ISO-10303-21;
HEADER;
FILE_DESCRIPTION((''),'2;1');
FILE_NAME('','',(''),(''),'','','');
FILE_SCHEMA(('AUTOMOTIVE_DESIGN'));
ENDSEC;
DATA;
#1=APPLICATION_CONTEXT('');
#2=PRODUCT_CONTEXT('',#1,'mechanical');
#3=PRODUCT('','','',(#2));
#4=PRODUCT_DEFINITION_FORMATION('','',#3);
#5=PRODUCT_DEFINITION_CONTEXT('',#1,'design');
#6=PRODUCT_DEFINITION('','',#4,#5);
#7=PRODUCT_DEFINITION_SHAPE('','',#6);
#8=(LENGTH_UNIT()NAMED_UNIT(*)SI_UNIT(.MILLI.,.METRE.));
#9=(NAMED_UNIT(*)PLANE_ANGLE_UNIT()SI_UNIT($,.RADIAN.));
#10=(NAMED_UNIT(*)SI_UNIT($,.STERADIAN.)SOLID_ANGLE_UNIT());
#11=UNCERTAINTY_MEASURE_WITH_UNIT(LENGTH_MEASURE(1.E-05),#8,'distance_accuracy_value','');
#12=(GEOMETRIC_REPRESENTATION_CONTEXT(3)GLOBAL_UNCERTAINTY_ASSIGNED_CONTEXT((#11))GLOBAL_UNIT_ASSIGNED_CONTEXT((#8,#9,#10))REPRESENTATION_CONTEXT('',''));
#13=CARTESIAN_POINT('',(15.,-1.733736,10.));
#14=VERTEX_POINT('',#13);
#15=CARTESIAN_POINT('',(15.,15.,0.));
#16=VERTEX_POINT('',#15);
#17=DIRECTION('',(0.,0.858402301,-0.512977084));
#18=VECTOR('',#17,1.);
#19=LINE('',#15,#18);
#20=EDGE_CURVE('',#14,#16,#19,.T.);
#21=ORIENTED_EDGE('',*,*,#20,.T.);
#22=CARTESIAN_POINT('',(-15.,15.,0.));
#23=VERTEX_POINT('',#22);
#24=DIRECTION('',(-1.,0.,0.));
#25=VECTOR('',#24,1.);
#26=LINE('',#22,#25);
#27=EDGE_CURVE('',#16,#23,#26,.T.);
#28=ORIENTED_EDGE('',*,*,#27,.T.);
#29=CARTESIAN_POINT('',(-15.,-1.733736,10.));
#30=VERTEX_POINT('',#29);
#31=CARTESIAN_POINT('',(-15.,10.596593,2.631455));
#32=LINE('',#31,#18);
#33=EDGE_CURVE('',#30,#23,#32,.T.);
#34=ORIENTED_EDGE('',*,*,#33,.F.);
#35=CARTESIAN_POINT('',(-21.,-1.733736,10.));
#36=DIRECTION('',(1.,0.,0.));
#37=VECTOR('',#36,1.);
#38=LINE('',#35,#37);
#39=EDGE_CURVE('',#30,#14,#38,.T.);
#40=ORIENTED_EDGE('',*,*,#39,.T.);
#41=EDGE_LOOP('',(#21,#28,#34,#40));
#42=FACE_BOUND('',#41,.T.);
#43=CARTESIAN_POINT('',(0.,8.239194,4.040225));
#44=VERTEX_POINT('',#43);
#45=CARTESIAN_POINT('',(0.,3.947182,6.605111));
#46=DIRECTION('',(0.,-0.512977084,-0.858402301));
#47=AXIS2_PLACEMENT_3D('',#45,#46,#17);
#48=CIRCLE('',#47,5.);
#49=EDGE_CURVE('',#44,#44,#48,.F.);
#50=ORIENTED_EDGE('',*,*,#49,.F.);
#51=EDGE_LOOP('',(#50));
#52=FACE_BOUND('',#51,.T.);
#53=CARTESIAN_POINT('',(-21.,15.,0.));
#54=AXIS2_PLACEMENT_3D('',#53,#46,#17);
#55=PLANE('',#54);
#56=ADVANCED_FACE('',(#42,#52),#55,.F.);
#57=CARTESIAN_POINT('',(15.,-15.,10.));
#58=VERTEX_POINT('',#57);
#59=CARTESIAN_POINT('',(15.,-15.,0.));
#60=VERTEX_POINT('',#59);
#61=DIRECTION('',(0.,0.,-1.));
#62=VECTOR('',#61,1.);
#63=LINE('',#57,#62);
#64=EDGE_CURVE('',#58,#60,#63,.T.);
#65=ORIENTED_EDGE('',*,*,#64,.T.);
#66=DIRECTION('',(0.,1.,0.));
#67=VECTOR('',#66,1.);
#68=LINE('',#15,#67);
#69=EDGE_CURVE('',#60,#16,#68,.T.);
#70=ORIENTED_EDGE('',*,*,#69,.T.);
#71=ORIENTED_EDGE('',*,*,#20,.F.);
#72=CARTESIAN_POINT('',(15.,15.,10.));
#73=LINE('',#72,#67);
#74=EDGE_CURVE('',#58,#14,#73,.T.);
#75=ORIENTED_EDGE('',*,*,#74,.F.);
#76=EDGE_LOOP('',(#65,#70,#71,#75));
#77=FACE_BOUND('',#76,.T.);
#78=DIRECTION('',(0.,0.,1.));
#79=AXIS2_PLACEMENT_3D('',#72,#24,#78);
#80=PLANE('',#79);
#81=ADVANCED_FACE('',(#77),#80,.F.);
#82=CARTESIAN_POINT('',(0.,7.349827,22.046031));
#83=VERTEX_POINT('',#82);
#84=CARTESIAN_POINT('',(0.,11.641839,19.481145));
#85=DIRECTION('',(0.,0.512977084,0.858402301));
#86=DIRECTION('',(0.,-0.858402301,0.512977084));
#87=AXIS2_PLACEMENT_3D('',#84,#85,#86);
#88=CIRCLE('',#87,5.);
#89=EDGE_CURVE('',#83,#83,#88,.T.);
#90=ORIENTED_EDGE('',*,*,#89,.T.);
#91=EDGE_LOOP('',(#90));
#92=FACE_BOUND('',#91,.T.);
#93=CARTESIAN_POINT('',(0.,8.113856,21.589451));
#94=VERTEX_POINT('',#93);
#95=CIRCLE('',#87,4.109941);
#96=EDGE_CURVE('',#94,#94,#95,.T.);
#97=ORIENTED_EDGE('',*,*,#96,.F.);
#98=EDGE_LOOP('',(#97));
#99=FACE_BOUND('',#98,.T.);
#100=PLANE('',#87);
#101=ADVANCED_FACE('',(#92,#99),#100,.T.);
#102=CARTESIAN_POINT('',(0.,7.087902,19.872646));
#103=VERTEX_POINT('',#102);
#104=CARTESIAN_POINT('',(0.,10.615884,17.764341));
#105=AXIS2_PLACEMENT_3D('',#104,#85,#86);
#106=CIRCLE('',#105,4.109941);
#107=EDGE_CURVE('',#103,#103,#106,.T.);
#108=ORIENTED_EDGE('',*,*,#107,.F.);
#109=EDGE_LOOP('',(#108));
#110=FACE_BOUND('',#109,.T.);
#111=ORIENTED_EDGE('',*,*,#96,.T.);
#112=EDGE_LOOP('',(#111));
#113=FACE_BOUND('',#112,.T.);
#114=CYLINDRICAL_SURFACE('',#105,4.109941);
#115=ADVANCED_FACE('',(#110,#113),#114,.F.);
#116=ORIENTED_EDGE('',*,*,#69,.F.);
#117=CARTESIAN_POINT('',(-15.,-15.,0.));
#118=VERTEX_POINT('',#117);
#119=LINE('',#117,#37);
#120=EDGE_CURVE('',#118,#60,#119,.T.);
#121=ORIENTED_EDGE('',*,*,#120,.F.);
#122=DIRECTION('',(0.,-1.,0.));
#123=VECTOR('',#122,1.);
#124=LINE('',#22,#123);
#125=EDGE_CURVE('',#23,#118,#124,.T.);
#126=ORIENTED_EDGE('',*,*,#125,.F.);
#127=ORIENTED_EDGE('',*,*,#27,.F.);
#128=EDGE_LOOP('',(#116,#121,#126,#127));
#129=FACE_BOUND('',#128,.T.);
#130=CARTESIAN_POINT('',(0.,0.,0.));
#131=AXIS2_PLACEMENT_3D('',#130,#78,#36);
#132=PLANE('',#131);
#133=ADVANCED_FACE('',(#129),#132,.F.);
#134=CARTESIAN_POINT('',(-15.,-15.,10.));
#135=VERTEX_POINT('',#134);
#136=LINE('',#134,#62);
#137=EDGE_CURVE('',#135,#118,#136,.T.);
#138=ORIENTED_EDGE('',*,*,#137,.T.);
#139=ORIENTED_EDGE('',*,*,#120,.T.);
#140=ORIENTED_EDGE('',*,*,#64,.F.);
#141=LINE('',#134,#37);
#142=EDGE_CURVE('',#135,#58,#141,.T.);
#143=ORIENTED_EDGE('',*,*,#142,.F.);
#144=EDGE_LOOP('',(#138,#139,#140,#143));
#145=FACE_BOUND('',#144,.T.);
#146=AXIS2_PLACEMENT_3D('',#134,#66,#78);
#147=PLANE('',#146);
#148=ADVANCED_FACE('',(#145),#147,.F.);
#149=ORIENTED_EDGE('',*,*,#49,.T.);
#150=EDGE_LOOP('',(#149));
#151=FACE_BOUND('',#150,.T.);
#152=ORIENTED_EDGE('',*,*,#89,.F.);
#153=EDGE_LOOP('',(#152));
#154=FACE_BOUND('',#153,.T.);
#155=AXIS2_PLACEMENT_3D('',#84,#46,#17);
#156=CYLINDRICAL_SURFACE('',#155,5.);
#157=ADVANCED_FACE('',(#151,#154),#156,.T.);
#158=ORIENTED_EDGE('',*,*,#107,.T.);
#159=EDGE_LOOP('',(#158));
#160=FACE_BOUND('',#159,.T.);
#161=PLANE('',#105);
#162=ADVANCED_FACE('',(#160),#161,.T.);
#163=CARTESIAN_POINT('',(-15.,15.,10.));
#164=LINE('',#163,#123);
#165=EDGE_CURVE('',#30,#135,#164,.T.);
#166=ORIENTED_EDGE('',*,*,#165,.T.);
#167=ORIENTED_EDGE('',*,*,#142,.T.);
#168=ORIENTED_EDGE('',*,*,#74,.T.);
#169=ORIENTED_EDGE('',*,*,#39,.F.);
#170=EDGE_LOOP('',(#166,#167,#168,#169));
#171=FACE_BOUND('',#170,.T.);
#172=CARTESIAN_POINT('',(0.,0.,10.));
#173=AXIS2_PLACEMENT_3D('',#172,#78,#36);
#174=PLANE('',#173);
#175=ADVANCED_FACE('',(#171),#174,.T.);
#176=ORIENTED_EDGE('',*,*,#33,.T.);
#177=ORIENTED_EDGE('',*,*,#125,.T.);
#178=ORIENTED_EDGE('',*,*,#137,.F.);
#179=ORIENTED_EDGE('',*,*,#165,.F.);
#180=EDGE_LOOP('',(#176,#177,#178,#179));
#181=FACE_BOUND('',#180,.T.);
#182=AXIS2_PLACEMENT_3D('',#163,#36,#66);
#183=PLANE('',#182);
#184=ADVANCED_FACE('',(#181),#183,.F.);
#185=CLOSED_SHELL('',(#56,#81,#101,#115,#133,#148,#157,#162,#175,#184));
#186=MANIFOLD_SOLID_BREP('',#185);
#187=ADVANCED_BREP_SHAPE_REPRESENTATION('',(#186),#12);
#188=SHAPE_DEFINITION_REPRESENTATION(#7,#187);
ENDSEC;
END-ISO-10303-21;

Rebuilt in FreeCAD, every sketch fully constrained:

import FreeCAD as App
import Part
import Sketcher
from FreeCAD import Vector

doc = App.newDocument("Part")
body = doc.addObject("PartDesign::Body", "Body")

sketch1 = body.newObject("Sketcher::SketchObject", "Sketch")
sketch1.AttachmentSupport = (doc.getObject("XY_Plane"), [""])
sketch1.MapMode = "FlatFace"
sketch1.addGeometry([
    Part.LineSegment(Vector(-15, 15, 0), Vector(-15, -15, 0)),
    Part.LineSegment(Vector(-15, -15, 0), Vector(15, -15, 0)),
    Part.LineSegment(Vector(15, -15, 0), Vector(15, 15, 0)),
    Part.LineSegment(Vector(15, 15, 0), Vector(-15, 15, 0)),
], False)
sketch1.addConstraint([
    Sketcher.Constraint("Coincident", 0, 2, 1, 1),
    Sketcher.Constraint("Coincident", 1, 2, 2, 1),
    Sketcher.Constraint("Coincident", 2, 2, 3, 1),
    Sketcher.Constraint("Coincident", 3, 2, 0, 1),
    Sketcher.Constraint("Vertical", 0),
    Sketcher.Constraint("Horizontal", 1),
    Sketcher.Constraint("Vertical", 2),
    Sketcher.Constraint("Horizontal", 3),
    Sketcher.Constraint("Symmetric", 0, 2, 2, 2, -1, 1),
    Sketcher.Constraint("Equal", 3, 0),
    Sketcher.Constraint("DistanceX", 1, 1, 1, 2, 30.0),
])
pad1 = body.newObject("PartDesign::Pad", "Pad")
pad1.Profile = sketch1
pad1.Length = 10

sketch2 = body.newObject("Sketcher::SketchObject", "Sketch001")
sketch2.AttachmentSupport = (doc.getObject("YZ_Plane"), [""])
sketch2.MapMode = "FlatFace"
sketch2.AttachmentOffset = App.Placement(Vector(0, 0, 15), App.Rotation())
sketch2.addGeometry([
    Part.LineSegment(Vector(-2, 10, 0), Vector(15, 0, 0)),
    Part.LineSegment(Vector(15, 0, 0), Vector(15, 10, 0)),
    Part.LineSegment(Vector(15, 10, 0), Vector(-2, 10, 0)),
], False)
sketch2.addConstraint([
    Sketcher.Constraint("Coincident", 0, 2, 1, 1),
    Sketcher.Constraint("Coincident", 1, 2, 2, 1),
    Sketcher.Constraint("Coincident", 2, 2, 0, 1),
    Sketcher.Constraint("Vertical", 1),
    Sketcher.Constraint("Horizontal", 2),
    Sketcher.Constraint("PointOnObject", 0, 2, -1),
    Sketcher.Constraint("DistanceY", 1, 1, 1, 2, 10.0),
    Sketcher.Constraint("DistanceX", -1, 1, 0, 2, 15.0),
    Sketcher.Constraint("Distance", 0, 19.494048),
])
pocket1 = body.newObject("PartDesign::Pocket", "Pocket")
pocket1.Profile = sketch2
pocket1.Length = 36

sketch3 = body.newObject("Sketcher::SketchObject", "Sketch002")
sketch3.Placement = App.Placement(Vector(0, 3.947182, 6.605111), App.Rotation(Vector(1, 0, 0), Vector(0, 0.858402301, -0.512977084), Vector(0, 0.512977084, 0.858402301), "ZXY"))
sketch3.addGeometry(Part.Circle(Vector(0, 0, 0), Vector(0, 0, 1), 5), False)
sketch3.addConstraint([
    Sketcher.Constraint("Coincident", 0, 3, -1, 1),
    Sketcher.Constraint("Diameter", 0, 10.0),
])
pad2 = body.newObject("PartDesign::Pad", "Pad001")
pad2.Profile = sketch3
pad2.Length = 15

sketch4 = body.newObject("Sketcher::SketchObject", "Sketch003")
sketch4.Placement = App.Placement(Vector(0, 11.641839, 19.481145), App.Rotation(Vector(1, 0, 0), Vector(0, 0.858402301, -0.512977084), Vector(0, 0.512977084, 0.858402301), "ZXY"))
sketch4.addGeometry(Part.Circle(Vector(0, 0, 0), Vector(0, 0, 1), 4.1), False)
sketch4.addConstraint([
    Sketcher.Constraint("Coincident", 0, 3, -1, 1),
    Sketcher.Constraint("Diameter", 0, 8.219882),
])
pocket2 = body.newObject("PartDesign::Pocket", "Pocket001")
pocket2.Profile = sketch4
pocket2.Length = 2

doc.recompute()
